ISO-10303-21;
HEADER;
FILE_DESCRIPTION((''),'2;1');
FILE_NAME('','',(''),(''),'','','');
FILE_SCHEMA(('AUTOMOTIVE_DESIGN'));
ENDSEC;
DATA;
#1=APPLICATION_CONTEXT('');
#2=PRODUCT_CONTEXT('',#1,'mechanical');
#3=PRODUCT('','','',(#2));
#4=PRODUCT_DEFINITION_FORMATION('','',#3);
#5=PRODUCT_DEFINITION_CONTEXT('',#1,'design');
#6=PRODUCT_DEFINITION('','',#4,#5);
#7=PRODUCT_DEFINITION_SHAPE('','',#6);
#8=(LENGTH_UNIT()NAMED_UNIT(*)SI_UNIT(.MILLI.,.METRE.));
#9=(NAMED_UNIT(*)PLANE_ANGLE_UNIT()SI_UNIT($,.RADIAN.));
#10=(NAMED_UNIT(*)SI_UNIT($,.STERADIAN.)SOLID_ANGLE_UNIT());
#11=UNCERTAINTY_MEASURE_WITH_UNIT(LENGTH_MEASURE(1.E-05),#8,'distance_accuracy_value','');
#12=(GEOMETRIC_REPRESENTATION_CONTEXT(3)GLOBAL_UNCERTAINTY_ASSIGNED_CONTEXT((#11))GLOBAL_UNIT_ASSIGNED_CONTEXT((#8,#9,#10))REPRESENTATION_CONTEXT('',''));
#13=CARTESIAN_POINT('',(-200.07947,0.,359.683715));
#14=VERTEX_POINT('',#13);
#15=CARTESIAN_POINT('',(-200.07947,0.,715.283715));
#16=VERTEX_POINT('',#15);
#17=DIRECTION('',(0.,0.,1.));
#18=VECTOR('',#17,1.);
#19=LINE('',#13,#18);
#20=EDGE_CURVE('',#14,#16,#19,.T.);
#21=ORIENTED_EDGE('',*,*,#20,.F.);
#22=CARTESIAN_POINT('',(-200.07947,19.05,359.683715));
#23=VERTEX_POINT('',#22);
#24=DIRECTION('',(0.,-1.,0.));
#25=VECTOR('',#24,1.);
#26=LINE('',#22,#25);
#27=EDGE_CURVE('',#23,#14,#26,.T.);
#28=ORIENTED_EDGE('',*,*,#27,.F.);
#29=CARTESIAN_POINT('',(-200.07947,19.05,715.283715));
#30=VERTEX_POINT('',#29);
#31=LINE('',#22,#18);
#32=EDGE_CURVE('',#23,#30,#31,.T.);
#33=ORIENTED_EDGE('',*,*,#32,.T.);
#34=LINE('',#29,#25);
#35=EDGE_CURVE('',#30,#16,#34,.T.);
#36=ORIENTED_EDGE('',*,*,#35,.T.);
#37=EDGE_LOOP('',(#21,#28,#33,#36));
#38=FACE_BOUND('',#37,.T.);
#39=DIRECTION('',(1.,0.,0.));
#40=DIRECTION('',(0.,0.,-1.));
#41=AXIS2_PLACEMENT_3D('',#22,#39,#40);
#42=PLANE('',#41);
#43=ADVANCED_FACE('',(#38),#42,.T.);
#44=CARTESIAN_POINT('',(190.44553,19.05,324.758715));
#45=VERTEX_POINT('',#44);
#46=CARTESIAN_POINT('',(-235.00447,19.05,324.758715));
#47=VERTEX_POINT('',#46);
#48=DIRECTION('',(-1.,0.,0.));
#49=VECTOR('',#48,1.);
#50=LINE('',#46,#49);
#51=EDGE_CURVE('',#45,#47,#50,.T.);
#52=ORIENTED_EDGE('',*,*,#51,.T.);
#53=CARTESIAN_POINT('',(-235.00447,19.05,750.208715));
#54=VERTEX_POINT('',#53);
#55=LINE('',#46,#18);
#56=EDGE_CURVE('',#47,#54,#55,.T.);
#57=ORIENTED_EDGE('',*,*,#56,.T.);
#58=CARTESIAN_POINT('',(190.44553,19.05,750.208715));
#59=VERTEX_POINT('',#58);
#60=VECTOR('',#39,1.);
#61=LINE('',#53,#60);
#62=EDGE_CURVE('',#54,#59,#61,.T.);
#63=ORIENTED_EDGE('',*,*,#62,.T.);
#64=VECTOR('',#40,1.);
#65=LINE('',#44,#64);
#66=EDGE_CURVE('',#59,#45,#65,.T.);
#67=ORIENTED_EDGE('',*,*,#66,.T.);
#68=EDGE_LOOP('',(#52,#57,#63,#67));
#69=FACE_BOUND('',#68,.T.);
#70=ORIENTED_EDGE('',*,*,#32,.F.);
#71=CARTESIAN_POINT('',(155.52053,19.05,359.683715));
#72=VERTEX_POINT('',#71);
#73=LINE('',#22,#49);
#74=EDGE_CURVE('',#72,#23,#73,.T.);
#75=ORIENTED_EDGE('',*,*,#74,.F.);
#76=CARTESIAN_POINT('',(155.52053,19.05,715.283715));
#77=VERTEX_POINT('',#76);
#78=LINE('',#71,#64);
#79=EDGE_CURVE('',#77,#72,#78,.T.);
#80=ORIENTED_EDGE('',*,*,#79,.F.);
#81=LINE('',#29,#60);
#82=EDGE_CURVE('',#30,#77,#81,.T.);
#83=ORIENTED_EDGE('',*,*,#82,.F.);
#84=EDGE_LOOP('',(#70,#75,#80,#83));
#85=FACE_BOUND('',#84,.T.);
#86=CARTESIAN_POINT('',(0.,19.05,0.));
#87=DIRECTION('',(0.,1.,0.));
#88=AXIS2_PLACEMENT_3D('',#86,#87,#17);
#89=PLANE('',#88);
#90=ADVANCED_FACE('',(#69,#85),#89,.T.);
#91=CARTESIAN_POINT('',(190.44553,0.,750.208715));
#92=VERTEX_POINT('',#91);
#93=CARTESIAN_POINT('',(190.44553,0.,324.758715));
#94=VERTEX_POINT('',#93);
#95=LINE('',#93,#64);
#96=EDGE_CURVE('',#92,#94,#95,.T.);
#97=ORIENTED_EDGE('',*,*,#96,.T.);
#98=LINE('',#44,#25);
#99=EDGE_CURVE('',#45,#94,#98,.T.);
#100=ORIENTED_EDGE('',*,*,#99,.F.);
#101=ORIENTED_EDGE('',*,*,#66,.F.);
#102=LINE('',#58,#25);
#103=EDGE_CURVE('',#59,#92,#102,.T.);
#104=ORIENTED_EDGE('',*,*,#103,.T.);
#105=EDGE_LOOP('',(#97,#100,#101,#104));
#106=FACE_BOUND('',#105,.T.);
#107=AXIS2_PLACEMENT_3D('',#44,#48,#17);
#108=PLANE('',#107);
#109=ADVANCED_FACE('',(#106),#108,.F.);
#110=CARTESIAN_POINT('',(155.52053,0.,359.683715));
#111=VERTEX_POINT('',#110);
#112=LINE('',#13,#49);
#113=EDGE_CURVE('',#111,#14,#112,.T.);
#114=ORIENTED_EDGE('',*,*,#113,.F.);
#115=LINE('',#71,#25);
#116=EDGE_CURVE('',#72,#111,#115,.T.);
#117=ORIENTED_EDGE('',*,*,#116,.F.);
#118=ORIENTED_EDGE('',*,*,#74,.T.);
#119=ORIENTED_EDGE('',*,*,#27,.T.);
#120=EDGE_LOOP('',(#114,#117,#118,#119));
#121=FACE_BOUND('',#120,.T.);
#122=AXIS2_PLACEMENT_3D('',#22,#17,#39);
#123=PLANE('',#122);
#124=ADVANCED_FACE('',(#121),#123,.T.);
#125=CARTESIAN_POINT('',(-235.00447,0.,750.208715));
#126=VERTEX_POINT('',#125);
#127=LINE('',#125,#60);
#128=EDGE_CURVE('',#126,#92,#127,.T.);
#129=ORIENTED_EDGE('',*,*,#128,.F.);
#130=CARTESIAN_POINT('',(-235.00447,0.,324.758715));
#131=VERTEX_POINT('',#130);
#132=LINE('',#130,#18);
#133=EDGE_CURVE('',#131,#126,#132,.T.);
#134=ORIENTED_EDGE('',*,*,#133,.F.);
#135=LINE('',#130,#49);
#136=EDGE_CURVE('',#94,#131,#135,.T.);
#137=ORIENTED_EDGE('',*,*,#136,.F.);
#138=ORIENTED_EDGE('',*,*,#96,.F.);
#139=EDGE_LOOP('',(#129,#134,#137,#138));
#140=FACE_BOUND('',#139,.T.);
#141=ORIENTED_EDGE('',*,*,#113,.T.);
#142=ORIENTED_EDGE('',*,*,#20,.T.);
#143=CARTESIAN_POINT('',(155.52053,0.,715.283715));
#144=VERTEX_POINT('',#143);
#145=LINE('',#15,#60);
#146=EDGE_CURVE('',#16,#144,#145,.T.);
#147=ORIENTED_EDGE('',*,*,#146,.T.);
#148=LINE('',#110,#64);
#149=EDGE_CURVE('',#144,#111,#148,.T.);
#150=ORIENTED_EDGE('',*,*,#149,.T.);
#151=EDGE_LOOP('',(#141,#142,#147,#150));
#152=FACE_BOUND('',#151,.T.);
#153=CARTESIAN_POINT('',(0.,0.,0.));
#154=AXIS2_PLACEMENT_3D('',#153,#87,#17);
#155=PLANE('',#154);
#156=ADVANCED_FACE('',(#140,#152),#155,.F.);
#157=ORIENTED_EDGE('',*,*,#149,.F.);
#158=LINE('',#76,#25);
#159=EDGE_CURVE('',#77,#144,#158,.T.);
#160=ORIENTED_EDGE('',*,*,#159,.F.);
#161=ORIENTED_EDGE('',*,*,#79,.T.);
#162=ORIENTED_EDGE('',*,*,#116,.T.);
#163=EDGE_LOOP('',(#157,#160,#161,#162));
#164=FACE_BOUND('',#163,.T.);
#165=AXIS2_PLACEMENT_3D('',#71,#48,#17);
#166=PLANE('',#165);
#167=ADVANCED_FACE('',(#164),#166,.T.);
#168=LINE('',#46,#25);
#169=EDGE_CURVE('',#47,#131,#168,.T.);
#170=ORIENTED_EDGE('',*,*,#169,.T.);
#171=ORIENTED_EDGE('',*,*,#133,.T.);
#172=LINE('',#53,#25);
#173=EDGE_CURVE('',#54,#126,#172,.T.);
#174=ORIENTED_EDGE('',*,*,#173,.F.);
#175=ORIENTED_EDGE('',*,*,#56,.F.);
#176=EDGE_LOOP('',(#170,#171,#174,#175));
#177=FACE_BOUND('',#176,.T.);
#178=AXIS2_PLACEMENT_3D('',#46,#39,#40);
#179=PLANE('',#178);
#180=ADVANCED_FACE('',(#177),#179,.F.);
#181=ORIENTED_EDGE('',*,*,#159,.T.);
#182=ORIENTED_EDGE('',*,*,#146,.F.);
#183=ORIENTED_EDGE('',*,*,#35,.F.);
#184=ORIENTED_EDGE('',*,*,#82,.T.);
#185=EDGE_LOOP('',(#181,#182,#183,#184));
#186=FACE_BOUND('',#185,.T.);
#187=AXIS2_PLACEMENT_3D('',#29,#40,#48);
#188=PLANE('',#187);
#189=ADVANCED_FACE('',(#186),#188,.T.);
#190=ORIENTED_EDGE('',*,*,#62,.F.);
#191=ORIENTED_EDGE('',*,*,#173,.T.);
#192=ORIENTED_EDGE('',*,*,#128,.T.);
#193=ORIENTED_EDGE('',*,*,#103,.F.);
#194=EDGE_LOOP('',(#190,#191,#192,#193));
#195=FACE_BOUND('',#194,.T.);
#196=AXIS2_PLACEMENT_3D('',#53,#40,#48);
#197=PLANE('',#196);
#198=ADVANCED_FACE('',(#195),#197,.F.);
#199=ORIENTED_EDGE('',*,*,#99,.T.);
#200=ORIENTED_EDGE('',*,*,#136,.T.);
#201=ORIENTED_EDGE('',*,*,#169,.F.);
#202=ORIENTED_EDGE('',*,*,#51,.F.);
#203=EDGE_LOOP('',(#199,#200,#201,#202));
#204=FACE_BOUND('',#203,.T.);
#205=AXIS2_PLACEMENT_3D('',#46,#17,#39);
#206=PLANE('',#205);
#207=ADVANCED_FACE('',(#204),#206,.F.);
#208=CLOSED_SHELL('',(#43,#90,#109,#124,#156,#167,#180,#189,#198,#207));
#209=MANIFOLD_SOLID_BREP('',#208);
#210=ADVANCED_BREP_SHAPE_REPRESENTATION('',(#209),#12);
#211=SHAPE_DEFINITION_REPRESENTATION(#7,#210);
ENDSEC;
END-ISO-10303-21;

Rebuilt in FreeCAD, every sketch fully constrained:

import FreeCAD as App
import Part
import Sketcher
from FreeCAD import Vector
Q = App.Units.Quantity

doc = App.newDocument("Part")
body = doc.addObject("PartDesign::Body", "Body")

sketch1 = body.newObject("Sketcher::SketchObject", "Sketch")
sketch1.AttachmentSupport = (doc.getObject("XZ_Plane"), [""])
sketch1.MapMode = "FlatFace"
sketch1.addGeometry([
    Part.LineSegment(Vector(-235, 325, 0), Vector(-235, 750, 0)),
    Part.LineSegment(Vector(-235, 750, 0), Vector(190, 750, 0)),
    Part.LineSegment(Vector(190, 750, 0), Vector(190, 325, 0)),
    Part.LineSegment(Vector(190, 325, 0), Vector(-235, 325, 0)),
    Part.LineSegment(Vector(156, 715, 0), Vector(-200, 715, 0)),
    Part.LineSegment(Vector(-200, 715, 0), Vector(-200, 360, 0)),
    Part.LineSegment(Vector(-200, 360, 0), Vector(156, 360, 0)),
    Part.LineSegment(Vector(156, 360, 0), Vector(156, 715, 0)),
], False)
sketch1.addConstraint([
    Sketcher.Constraint("Coincident", 0, 2, 1, 1),
    Sketcher.Constraint("Coincident", 1, 2, 2, 1),
    Sketcher.Constraint("Coincident", 2, 2, 3, 1),
    Sketcher.Constraint("Coincident", 3, 2, 0, 1),
    Sketcher.Constraint("Coincident", 4, 2, 5, 1),
    Sketcher.Constraint("Coincident", 5, 2, 6, 1),
    Sketcher.Constraint("Coincident", 6, 2, 7, 1),
    Sketcher.Constraint("Coincident", 7, 2, 4, 1),
    Sketcher.Constraint("Vertical", 0),
    Sketcher.Constraint("Horizontal", 1),
    Sketcher.Constraint("Vertical", 2),
    Sketcher.Constraint("Horizontal", 3),
    Sketcher.Constraint("Horizontal", 4),
    Sketcher.Constraint("Vertical", 5),
    Sketcher.Constraint("Horizontal", 6),
    Sketcher.Constraint("Vertical", 7),
    Sketcher.Constraint("Equal", 3, 0),
    Sketcher.Constraint("Equal", 6, 5),
    Sketcher.Constraint("DistanceX", 4, 2, 4, 1, Q("14 in")),
    Sketcher.Constraint("DistanceX", 1, 1, 1, 2, Q("16.75 in")),
    Sketcher.Constraint("DistanceX", 0, 2, 4, 2, Q("1.375 in")),
    Sketcher.Constraint("DistanceY", 4, 2, 0, 2, Q("1.375 in")),
    Sketcher.Constraint("DistanceX", 0, 2, -1, 1, Q("235.00447 mm")),
    Sketcher.Constraint("DistanceY", -1, 1, 0, 2, Q("750.208715 mm")),
])
pad1 = body.newObject("PartDesign::Pad", "Pad")
pad1.Profile = sketch1
pad1.Length = Q("0.75 in")
pad1.Reversed = True

doc.recompute()
